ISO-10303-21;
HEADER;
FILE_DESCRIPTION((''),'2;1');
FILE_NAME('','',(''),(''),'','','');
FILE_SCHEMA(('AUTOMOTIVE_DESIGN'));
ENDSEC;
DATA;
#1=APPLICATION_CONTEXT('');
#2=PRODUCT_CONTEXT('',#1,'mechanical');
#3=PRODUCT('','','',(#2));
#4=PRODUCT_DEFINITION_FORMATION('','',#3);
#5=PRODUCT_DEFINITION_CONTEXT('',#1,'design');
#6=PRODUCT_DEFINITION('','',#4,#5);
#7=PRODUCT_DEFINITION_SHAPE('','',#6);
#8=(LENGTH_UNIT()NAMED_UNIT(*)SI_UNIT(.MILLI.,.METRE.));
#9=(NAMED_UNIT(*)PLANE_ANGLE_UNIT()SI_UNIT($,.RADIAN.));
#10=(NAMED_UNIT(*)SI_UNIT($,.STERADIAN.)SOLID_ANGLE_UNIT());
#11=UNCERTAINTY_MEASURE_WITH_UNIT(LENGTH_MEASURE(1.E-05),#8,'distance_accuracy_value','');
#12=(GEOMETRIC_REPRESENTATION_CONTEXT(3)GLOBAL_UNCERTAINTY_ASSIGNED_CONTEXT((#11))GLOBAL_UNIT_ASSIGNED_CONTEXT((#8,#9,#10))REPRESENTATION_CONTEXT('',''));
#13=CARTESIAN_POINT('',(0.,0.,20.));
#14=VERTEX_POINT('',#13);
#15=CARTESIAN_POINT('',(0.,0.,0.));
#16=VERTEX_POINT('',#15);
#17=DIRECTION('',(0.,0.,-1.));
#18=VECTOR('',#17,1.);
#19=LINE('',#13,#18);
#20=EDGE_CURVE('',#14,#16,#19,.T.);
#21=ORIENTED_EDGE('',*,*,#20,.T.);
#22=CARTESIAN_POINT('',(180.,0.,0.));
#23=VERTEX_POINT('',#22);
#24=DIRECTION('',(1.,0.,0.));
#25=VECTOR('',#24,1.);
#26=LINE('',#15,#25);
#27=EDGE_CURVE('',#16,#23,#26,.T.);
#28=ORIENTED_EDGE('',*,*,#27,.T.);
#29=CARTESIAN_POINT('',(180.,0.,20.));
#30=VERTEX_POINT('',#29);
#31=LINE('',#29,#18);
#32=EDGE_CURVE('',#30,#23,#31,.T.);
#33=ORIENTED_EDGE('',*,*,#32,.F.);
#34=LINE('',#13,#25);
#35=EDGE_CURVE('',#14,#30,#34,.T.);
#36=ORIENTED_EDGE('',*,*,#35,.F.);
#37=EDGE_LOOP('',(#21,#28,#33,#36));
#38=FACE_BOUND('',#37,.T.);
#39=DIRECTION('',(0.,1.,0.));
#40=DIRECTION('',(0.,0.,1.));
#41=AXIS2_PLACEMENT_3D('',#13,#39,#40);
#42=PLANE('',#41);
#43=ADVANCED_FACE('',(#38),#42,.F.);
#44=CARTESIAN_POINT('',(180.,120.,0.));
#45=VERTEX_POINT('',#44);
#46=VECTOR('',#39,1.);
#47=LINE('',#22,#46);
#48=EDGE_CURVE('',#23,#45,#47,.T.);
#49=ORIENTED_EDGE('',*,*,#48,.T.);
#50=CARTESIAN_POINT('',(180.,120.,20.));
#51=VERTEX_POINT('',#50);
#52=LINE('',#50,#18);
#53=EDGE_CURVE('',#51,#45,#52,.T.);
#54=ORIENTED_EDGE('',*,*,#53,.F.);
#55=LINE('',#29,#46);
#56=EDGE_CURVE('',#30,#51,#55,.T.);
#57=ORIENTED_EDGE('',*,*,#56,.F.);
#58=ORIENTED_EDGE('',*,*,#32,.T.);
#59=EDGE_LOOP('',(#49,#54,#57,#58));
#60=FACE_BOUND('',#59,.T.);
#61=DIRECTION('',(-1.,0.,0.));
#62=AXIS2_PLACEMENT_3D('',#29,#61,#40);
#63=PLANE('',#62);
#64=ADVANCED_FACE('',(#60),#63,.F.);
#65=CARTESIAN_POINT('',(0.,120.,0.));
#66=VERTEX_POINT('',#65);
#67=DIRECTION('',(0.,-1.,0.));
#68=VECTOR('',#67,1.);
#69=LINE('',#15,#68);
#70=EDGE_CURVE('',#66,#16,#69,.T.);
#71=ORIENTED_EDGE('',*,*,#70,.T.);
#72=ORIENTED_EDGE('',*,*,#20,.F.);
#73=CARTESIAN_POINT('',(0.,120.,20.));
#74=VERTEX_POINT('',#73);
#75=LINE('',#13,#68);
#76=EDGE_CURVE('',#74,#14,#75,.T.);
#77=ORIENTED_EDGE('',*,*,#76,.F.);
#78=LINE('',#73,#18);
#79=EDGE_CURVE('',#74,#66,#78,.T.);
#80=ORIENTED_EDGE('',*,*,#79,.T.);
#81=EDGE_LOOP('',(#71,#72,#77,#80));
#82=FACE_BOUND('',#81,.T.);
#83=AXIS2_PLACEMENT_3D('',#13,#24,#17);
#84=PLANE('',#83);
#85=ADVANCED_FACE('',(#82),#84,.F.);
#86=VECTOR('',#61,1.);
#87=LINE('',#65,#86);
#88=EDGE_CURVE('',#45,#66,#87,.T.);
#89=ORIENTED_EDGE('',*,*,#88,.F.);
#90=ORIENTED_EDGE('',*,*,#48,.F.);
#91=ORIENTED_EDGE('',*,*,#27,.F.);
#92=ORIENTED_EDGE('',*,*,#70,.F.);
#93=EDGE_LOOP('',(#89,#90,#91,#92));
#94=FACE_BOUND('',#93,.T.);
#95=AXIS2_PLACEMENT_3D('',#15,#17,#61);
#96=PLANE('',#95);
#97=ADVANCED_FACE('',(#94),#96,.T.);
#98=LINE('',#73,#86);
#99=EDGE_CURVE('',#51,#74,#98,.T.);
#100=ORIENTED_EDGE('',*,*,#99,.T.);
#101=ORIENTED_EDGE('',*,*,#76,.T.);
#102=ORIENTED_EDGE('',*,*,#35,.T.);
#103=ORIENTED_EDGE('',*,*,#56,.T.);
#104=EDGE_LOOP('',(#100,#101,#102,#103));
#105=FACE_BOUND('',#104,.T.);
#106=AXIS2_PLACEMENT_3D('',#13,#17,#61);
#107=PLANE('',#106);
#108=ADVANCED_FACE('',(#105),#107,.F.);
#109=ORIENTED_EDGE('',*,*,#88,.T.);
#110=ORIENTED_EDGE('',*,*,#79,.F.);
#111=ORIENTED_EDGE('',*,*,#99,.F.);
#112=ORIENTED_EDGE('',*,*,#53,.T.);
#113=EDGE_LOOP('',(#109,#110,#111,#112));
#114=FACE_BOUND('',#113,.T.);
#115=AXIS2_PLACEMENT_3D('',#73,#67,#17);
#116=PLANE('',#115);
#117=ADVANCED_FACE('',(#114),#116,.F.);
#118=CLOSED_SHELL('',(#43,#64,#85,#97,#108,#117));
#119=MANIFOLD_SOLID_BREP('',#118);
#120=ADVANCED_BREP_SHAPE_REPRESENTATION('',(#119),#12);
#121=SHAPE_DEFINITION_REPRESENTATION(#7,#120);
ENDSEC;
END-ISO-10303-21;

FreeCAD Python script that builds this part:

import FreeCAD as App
import Part
import Sketcher

V = App.Vector

doc = App.newDocument("Part")
body = doc.addObject("PartDesign::Body", "Body")

# Sketch on XY plane
sketch1 = body.newObject("Sketcher::SketchObject", "Sketch")
sketch1.AttachmentSupport = (doc.getObject("XY_Plane"), [""])
sketch1.MapMode = "FlatFace"
sketch1.addGeometry(Part.LineSegment(V(0, 120, 0), V(0, 0, 0)), False)
sketch1.addGeometry(Part.LineSegment(V(0, 0, 0), V(180, 0, 0)), False)
sketch1.addGeometry(Part.LineSegment(V(180, 0, 0), V(180, 120, 0)), False)
sketch1.addGeometry(Part.LineSegment(V(180, 120, 0), V(0, 120, 0)), False)
sketch1.addConstraint(Sketcher.Constraint("Coincident", 0, 2, 1, 1))
sketch1.addConstraint(Sketcher.Constraint("Coincident", 1, 2, 2, 1))
sketch1.addConstraint(Sketcher.Constraint("Coincident", 2, 2, 3, 1))
sketch1.addConstraint(Sketcher.Constraint("Coincident", 3, 2, 0, 1))
sketch1.addConstraint(Sketcher.Constraint("Vertical", 0))
sketch1.addConstraint(Sketcher.Constraint("Horizontal", 1))
sketch1.addConstraint(Sketcher.Constraint("Vertical", 2))
sketch1.addConstraint(Sketcher.Constraint("Horizontal", 3))
sketch1.addConstraint(Sketcher.Constraint("Coincident", 0, 2, -1, 1))
sketch1.addConstraint(Sketcher.Constraint("DistanceX", 1, 1, 1, 2, 180.0))
sketch1.addConstraint(Sketcher.Constraint("DistanceY", 0, 2, 0, 1, 120.0))
pad1 = body.newObject("PartDesign::Pad", "Pad")
pad1.Profile = sketch1
pad1.Length = 20

doc.recompute()
